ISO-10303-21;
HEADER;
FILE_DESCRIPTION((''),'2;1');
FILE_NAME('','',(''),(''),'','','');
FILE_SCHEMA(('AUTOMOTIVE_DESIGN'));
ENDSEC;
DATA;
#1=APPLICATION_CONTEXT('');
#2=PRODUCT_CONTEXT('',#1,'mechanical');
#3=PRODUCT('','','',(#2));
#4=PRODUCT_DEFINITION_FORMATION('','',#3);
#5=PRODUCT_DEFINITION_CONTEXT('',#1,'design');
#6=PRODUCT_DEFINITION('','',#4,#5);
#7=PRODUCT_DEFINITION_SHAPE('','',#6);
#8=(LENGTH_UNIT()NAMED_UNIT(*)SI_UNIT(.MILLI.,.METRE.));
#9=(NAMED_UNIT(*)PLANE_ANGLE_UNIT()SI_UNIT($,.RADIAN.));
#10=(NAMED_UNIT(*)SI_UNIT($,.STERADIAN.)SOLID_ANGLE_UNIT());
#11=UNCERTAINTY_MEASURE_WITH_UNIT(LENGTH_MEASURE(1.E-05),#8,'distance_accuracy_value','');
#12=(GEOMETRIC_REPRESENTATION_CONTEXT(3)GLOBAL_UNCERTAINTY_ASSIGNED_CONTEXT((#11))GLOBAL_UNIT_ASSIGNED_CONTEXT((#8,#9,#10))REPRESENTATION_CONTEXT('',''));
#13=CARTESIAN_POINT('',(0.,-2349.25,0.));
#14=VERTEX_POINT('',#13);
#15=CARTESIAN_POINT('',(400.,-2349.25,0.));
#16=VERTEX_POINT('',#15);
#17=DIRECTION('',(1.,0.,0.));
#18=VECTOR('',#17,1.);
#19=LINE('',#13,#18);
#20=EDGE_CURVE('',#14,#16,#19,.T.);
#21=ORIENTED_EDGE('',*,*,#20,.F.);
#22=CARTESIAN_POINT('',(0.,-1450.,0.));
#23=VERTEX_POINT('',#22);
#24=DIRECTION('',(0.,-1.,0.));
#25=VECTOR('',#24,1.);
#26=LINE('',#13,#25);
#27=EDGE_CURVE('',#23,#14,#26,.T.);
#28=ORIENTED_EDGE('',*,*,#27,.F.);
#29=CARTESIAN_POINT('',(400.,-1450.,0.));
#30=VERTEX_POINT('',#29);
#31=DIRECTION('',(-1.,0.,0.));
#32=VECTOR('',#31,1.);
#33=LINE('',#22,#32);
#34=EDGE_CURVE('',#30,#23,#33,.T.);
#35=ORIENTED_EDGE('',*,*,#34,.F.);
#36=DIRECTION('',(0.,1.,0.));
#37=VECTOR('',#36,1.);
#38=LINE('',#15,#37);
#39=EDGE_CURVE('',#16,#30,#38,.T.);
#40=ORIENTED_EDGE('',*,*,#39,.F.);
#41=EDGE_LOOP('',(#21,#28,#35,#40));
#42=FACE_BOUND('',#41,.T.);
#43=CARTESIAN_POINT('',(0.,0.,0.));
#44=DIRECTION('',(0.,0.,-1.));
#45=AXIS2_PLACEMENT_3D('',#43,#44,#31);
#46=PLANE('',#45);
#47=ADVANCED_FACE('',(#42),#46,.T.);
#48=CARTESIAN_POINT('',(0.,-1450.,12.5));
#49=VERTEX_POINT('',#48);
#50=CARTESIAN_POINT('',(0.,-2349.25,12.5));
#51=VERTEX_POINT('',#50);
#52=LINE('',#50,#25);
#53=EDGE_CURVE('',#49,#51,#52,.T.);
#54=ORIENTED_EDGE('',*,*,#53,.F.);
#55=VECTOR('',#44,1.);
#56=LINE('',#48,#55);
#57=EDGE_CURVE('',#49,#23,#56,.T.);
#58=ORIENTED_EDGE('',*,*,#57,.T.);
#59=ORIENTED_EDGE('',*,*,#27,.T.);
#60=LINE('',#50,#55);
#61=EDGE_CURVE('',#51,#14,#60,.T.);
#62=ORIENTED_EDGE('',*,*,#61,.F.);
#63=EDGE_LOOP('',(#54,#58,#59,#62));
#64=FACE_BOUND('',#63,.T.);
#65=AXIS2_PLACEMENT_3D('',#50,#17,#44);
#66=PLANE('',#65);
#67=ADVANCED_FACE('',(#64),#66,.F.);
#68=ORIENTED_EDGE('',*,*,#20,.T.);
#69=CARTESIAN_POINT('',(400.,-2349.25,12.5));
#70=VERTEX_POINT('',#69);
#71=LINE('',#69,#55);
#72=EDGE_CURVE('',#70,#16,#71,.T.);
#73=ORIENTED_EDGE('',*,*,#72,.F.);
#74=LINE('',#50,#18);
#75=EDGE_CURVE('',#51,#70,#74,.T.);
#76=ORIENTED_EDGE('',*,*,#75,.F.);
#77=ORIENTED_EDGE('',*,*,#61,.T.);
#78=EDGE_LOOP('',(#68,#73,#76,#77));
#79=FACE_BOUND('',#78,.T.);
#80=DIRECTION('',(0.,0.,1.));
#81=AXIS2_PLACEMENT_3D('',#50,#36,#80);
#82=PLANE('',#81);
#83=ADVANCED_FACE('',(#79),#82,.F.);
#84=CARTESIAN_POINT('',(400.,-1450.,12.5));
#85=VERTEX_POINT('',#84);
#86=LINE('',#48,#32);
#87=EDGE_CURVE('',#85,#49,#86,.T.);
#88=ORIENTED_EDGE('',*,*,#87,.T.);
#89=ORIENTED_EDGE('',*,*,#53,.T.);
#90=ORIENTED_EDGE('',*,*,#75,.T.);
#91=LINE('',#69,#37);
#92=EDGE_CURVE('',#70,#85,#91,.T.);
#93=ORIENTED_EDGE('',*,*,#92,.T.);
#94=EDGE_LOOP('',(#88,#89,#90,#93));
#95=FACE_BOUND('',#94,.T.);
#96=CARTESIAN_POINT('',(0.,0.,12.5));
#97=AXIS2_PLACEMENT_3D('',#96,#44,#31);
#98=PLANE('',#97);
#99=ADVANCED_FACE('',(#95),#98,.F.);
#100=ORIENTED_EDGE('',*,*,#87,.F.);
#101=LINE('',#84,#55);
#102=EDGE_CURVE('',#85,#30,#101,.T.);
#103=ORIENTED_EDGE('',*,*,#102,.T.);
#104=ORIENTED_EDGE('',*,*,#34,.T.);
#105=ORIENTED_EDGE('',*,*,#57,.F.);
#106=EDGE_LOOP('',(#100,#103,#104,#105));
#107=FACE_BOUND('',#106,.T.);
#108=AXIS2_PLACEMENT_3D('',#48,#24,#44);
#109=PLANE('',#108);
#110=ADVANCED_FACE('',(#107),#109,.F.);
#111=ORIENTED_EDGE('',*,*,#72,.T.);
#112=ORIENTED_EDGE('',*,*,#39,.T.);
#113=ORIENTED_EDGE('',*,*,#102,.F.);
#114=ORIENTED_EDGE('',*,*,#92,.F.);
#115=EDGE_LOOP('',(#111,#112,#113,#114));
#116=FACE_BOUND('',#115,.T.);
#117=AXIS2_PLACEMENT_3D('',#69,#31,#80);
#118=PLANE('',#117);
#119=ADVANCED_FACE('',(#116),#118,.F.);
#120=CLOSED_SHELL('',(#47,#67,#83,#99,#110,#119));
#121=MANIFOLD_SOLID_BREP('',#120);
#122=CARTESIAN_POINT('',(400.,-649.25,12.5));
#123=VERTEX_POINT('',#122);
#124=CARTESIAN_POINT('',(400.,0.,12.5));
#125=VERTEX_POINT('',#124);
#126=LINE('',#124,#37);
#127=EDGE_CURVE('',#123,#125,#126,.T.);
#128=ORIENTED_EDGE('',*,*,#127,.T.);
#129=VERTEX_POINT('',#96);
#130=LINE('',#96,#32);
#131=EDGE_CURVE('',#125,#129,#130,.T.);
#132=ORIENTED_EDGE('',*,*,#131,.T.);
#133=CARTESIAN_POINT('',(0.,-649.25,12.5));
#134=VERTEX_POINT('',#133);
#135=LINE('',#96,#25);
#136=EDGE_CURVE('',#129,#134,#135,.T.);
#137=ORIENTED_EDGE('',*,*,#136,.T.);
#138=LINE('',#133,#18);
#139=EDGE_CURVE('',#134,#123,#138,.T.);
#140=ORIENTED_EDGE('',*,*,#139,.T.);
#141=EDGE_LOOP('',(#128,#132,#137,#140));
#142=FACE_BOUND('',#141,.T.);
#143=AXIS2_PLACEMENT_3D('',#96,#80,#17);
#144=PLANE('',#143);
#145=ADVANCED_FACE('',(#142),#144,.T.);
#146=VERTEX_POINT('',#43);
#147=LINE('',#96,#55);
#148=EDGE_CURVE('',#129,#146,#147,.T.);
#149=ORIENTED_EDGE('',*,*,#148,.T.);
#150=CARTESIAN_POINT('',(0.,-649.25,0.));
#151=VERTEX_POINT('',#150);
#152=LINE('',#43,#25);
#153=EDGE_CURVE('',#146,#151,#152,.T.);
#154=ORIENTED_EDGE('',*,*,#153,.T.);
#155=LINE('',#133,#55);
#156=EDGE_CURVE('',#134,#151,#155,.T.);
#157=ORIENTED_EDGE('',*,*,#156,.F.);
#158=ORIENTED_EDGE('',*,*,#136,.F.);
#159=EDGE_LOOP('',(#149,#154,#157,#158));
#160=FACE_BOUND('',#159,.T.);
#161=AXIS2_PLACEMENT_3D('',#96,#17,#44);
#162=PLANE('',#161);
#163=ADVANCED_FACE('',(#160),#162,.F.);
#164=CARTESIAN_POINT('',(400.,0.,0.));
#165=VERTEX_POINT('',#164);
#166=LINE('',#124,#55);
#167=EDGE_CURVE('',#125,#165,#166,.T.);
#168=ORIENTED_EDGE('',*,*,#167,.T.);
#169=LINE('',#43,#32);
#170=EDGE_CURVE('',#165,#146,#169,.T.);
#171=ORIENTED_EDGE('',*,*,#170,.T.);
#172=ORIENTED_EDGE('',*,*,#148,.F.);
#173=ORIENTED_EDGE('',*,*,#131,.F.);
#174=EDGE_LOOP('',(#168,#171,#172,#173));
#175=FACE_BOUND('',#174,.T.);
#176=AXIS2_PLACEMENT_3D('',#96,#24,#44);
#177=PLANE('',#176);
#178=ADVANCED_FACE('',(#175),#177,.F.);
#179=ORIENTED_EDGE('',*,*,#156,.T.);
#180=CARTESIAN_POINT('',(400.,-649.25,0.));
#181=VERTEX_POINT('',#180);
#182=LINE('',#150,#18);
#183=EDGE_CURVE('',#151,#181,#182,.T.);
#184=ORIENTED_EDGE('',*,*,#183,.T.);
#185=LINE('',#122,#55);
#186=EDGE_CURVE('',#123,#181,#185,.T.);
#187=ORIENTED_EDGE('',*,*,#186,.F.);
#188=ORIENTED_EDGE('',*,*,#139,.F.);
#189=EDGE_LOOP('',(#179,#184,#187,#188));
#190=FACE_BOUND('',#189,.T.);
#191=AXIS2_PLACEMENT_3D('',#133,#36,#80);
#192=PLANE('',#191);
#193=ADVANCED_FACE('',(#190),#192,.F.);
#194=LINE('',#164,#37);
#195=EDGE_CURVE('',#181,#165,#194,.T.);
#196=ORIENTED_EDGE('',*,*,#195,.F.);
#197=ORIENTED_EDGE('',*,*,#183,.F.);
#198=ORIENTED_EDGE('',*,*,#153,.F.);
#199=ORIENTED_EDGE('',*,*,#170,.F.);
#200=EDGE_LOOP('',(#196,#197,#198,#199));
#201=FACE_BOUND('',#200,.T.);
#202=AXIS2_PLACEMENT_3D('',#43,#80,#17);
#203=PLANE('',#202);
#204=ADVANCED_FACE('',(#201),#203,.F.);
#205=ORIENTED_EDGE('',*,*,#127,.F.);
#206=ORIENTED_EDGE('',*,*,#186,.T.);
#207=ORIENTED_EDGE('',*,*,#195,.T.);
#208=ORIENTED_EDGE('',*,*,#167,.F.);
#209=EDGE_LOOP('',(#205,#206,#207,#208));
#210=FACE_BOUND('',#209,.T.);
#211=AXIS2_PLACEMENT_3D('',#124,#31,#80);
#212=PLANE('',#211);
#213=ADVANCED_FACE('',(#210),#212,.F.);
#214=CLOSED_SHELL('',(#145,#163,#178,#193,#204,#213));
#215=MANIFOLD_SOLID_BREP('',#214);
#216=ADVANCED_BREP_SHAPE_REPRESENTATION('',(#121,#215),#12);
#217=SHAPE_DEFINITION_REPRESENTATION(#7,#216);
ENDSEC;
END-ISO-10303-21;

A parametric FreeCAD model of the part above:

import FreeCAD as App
import Part
import Sketcher

doc = App.newDocument("Part")
params = doc.addObject("Spreadsheet::Sheet", "Params")
for row, (alias, value) in enumerate([
    ("sketch1_width", "400 mm"),
    ("sketch1_height", "649.25 mm"),
    ("pad1_length", "12.5 mm"),
    ("sketch2_width", "400 mm"),
    ("sketch2_height", "899.25 mm"),
    ("pad2_length", "12.5 mm"),
], start=1):
    params.set(f"A{row}", alias)
    params.set(f"B{row}", "=" + value)
    params.setAlias(f"B{row}", alias)

body = doc.addObject("PartDesign::Body", "Body")

# Sketch on XY plane
sketch1 = body.newObject("Sketcher::SketchObject", "Sketch")
sketch1.AttachmentSupport = (doc.getObject("XY_Plane"), [""])
sketch1.MapMode = "FlatFace"
sketch1.addGeometry(Part.LineSegment(App.Vector(0, 0, 0), App.Vector(0, -649, 0)), False)
sketch1.addGeometry(Part.LineSegment(App.Vector(0, -649, 0), App.Vector(400, -649, 0)), False)
sketch1.addGeometry(Part.LineSegment(App.Vector(400, -649, 0), App.Vector(400, 0, 0)), False)
sketch1.addGeometry(Part.LineSegment(App.Vector(400, 0, 0), App.Vector(0, 0, 0)), False)
sketch1.addConstraint(Sketcher.Constraint("Coincident", 0, 2, 1, 1))
sketch1.addConstraint(Sketcher.Constraint("Coincident", 1, 2, 2, 1))
sketch1.addConstraint(Sketcher.Constraint("Coincident", 2, 2, 3, 1))
sketch1.addConstraint(Sketcher.Constraint("Coincident", 3, 2, 0, 1))
sketch1.addConstraint(Sketcher.Constraint("Vertical", 0))
sketch1.addConstraint(Sketcher.Constraint("Horizontal", 1))
sketch1.addConstraint(Sketcher.Constraint("Vertical", 2))
sketch1.addConstraint(Sketcher.Constraint("Horizontal", 3))
sketch1.addConstraint(Sketcher.Constraint("Coincident", 3, 2, -1, 1))
sketch1.addConstraint(Sketcher.Constraint("DistanceX", 1, 1, 1, 2, 400.0))
sketch1.addConstraint(Sketcher.Constraint("DistanceY", 0, 2, 0, 1, 649.25))
sketch1.setExpression("Constraints[9]", "Params.sketch1_width")
sketch1.setExpression("Constraints[10]", "Params.sketch1_height")
pad1 = body.newObject("PartDesign::Pad", "Pad")
pad1.Profile = sketch1
pad1.setExpression("Length", "Params.pad1_length")
body2 = doc.addObject("PartDesign::Body", "Body001")

# Sketch on XY plane
sketch2 = body2.newObject("Sketcher::SketchObject", "Sketch001")
sketch2.AttachmentSupport = (doc.getObject("XY_Plane001"), [""])
sketch2.MapMode = "FlatFace"
sketch2.addGeometry(Part.LineSegment(App.Vector(0, -1450, 0), App.Vector(0, -2349, 0)), False)
sketch2.addGeometry(Part.LineSegment(App.Vector(0, -2349, 0), App.Vector(400, -2349, 0)), False)
sketch2.addGeometry(Part.LineSegment(App.Vector(400, -2349, 0), App.Vector(400, -1450, 0)), False)
sketch2.addGeometry(Part.LineSegment(App.Vector(400, -1450, 0), App.Vector(0, -1450, 0)), False)
sketch2.addConstraint(Sketcher.Constraint("Coincident", 0, 2, 1, 1))
sketch2.addConstraint(Sketcher.Constraint("Coincident", 1, 2, 2, 1))
sketch2.addConstraint(Sketcher.Constraint("Coincident", 2, 2, 3, 1))
sketch2.addConstraint(Sketcher.Constraint("Coincident", 3, 2, 0, 1))
sketch2.addConstraint(Sketcher.Constraint("Vertical", 0))
sketch2.addConstraint(Sketcher.Constraint("Horizontal", 1))
sketch2.addConstraint(Sketcher.Constraint("Vertical", 2))
sketch2.addConstraint(Sketcher.Constraint("Horizontal", 3))
sketch2.addConstraint(Sketcher.Constraint("PointOnObject", 0, 2, -2))
sketch2.addConstraint(Sketcher.Constraint("DistanceX", 1, 1, 1, 2, 400.0))
sketch2.addConstraint(Sketcher.Constraint("DistanceY", 2, 2, -1, 1, 1450.0))
sketch2.addConstraint(Sketcher.Constraint("DistanceY", 0, 2, 0, 1, 899.25))
sketch2.setExpression("Constraints[9]", "Params.sketch2_width")
sketch2.setExpression("Constraints[11]", "Params.sketch2_height")
pad2 = body2.newObject("PartDesign::Pad", "Pad001")
pad2.Profile = sketch2
pad2.setExpression("Length", "Params.pad2_length")

doc.recompute()
